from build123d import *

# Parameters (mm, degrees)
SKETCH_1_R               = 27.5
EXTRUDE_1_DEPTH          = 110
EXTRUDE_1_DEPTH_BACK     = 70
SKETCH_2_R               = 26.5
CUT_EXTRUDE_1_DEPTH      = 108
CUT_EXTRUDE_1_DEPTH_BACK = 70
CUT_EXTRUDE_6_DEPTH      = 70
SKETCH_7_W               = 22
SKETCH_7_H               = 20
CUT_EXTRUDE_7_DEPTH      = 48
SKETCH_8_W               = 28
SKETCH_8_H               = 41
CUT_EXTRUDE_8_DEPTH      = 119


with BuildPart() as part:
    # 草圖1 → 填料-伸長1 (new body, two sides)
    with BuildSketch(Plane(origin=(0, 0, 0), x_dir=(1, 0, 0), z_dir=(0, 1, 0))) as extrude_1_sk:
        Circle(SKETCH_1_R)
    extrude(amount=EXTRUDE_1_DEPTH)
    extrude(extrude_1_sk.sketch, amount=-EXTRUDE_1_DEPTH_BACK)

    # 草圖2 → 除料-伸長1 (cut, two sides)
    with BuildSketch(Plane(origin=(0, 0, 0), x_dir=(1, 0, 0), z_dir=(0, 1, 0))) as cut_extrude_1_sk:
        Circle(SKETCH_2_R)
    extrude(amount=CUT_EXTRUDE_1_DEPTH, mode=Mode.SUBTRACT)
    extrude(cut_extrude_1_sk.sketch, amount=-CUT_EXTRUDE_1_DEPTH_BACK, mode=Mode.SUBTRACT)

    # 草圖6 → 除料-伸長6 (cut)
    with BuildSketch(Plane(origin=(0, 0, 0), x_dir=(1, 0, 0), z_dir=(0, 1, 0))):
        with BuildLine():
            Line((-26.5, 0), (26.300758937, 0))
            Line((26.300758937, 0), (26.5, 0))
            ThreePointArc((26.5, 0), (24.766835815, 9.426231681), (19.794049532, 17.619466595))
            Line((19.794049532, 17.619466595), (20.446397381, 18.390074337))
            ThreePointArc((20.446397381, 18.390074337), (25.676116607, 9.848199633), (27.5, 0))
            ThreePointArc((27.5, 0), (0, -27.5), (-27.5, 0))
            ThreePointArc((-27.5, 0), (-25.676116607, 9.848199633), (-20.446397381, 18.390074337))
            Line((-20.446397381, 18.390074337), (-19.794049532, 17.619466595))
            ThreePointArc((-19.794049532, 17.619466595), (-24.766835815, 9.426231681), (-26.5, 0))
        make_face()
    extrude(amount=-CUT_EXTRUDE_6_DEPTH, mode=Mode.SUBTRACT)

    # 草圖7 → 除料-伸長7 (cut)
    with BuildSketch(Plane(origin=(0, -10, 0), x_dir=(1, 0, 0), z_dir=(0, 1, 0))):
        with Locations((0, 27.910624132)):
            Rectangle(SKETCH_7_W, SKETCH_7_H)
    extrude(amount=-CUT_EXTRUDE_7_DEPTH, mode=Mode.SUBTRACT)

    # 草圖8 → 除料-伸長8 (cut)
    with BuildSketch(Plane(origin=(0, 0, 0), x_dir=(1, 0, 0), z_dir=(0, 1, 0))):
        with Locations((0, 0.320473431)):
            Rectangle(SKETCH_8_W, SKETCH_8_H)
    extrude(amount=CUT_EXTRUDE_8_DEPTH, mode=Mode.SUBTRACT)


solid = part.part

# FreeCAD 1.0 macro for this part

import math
import FreeCAD as App
import Part
import Sketcher


def add_polygon(sketch, points):
    """Adds a closed chain of lines whose ends are joined by coincident constraints."""
    first, n = sketch.GeometryCount, len(points)
    for a, b in zip(points, points[1:] + points[:1]):
        sketch.addGeometry(Part.LineSegment(App.Vector(*a, 0), App.Vector(*b, 0)), False)
    for i in range(n):
        sketch.addConstraint(Sketcher.Constraint("Coincident", first + i, 2, first + (i + 1) % n, 1))

doc = App.newDocument("Part")
body = doc.addObject("PartDesign::Body", "Body")

# Sketch on XZ plane
sketch1 = doc.addObject("Sketcher::SketchObject", "Sketch")
body.addObject(sketch1)
sketch1.AttachmentSupport = (doc.XZ_Plane, [""])
sketch1.MapMode = "FlatFace"
sketch1.addGeometry(Part.Circle(App.Vector(0, 0, 0), App.Vector(0, 0, 1), 28), False)
sketch1.addConstraint([
    Sketcher.Constraint("Coincident", 0, 3, -1, 1),
    Sketcher.Constraint("Diameter", 0, 55.0),
])
pad1 = doc.addObject("PartDesign::Pad", "Pad")
body.addObject(pad1)
pad1.Profile = sketch1
pad1.Type = "TwoLengths"
pad1.Length = 110
pad1.Length2 = 70
pad1.Reversed = True

# Sketch on XZ plane
sketch2 = doc.addObject("Sketcher::SketchObject", "Sketch001")
body.addObject(sketch2)
sketch2.AttachmentSupport = (doc.XZ_Plane, [""])
sketch2.MapMode = "FlatFace"
sketch2.addGeometry(Part.Circle(App.Vector(0, 0, 0), App.Vector(0, 0, 1), 26), False)
sketch2.addConstraint([
    Sketcher.Constraint("Coincident", 0, 3, -1, 1),
    Sketcher.Constraint("Diameter", 0, 53.0),
])
pocket1 = doc.addObject("PartDesign::Pocket", "Pocket")
body.addObject(pocket1)
pocket1.Profile = sketch2
pocket1.Type = "TwoLengths"
pocket1.Length = 108
pocket1.Length2 = 70

# Sketch on XZ plane
sketch3 = doc.addObject("Sketcher::SketchObject", "Sketch002")
body.addObject(sketch3)
sketch3.AttachmentSupport = (doc.XZ_Plane, [""])
sketch3.MapMode = "FlatFace"
sketch3.addGeometry([
    Part.LineSegment(App.Vector(26.5, 0, 0), App.Vector(-26.5, 0, 0)),  # 0
    Part.ArcOfCircle(Part.Circle(App.Vector(0, 0, 0), App.Vector(0, 0, 1), 26.5), math.radians(180), math.radians(222)),  # 1
    Part.LineSegment(App.Vector(-19.8, -17.6, 0), App.Vector(-20.4, -18.4, 0)),  # 2
    Part.ArcOfCircle(Part.Circle(App.Vector(0, 0, 0), App.Vector(0, 0, 1), 27.5), math.radians(180), math.radians(222)),  # 3
    Part.ArcOfCircle(Part.Circle(App.Vector(0, 0, 0), App.Vector(0, 0, 1), 27.5), math.radians(0), math.radians(180)),  # 4
    Part.ArcOfCircle(Part.Circle(App.Vector(0, 0, 0), App.Vector(0, 0, 1), 27.5), math.radians(-42), math.radians(0)),  # 5
    Part.LineSegment(App.Vector(20.4, -18.4, 0), App.Vector(19.8, -17.6, 0)),  # 6
    Part.ArcOfCircle(Part.Circle(App.Vector(0, 0, 0), App.Vector(0, 0, 1), 26.5), math.radians(-42), math.radians(0)),  # 7
], False)
sketch3.addConstraint([
    Sketcher.Constraint("Coincident", 0, 2, 1, 1),
    Sketcher.Constraint("Coincident", 1, 2, 2, 1),
    Sketcher.Constraint("Coincident", 2, 2, 3, 2),
    Sketcher.Constraint("Tangent", 3, 1, 4, 2),
    Sketcher.Constraint("Tangent", 4, 1, 5, 2),
    Sketcher.Constraint("Coincident", 5, 1, 6, 1),
    Sketcher.Constraint("Coincident", 6, 2, 7, 1),
    Sketcher.Constraint("Coincident", 7, 2, 0, 1),
    Sketcher.Constraint("Horizontal", 0),
    Sketcher.Constraint("Coincident", 1, 3, -1, 1),
    Sketcher.Constraint("Coincident", 3, 3, -1, 1),
    Sketcher.Constraint("Coincident", 7, 3, -1, 1),
    Sketcher.Constraint("Equal", 3, 4),
    Sketcher.Constraint("Equal", 4, 5),
    Sketcher.Constraint("Equal", 1, 7),
    Sketcher.Constraint("PointOnObject", 0, 2, -1),
    Sketcher.Constraint("PointOnObject", 3, 1, -1),
    Sketcher.Constraint("PointOnObject", 4, 1, -1),
    Sketcher.Constraint("Horizontal", 2, 2, 5, 1),
    Sketcher.Constraint("Horizontal", 1, 2, 6, 2),
    Sketcher.Constraint("Radius", 1, 26.5),
    Sketcher.Constraint("Radius", 3, 27.5),
    Sketcher.Constraint("Distance", 2, 1.00965),
    Sketcher.Constraint("DistanceX", 1, 2, -1, 1, 19.79405),
])
pocket2 = doc.addObject("PartDesign::Pocket", "Pocket001")
body.addObject(pocket2)
pocket2.Profile = sketch3
pocket2.Length = 70
pocket2.Reversed = True

# Sketch on XZ plane
sketch4 = doc.addObject("Sketcher::SketchObject", "Sketch003")
body.addObject(sketch4)
sketch4.AttachmentSupport = (doc.XZ_Plane, [""])
sketch4.MapMode = "FlatFace"
sketch4.AttachmentOffset = App.Placement(App.Vector(0, 0, 10), App.Rotation())
add_polygon(sketch4, [(-11, -38), (-11, -18), (11, -18), (11, -38)])  # lines 0-3
sketch4.addConstraint([
    Sketcher.Constraint("Vertical", 0),
    Sketcher.Constraint("Horizontal", 1),
    Sketcher.Constraint("Vertical", 2),
    Sketcher.Constraint("Horizontal", 3),
    Sketcher.Constraint("DistanceX", 1, 1, 1, 2, 22.0),
    Sketcher.Constraint("DistanceY", 0, 1, 0, 2, 20.0),
    Sketcher.Constraint("DistanceX", 0, 2, -1, 1, 11.0),
    Sketcher.Constraint("DistanceY", 0, 2, -1, 1, 17.910624),
])
pocket3 = doc.addObject("PartDesign::Pocket", "Pocket002")
body.addObject(pocket3)
pocket3.Profile = sketch4
pocket3.Length = 48
pocket3.Reversed = True

# Sketch on XZ plane
sketch5 = doc.addObject("Sketcher::SketchObject", "Sketch004")
body.addObject(sketch5)
sketch5.AttachmentSupport = (doc.XZ_Plane, [""])
sketch5.MapMode = "FlatFace"
add_polygon(sketch5, [(-14, -21), (-14, 20), (14, 20), (14, -21)])  # lines 0-3
sketch5.addConstraint([
    Sketcher.Constraint("Vertical", 0),
    Sketcher.Constraint("Horizontal", 1),
    Sketcher.Constraint("Vertical", 2),
    Sketcher.Constraint("Horizontal", 3),
    Sketcher.Constraint("DistanceX", 1, 1, 1, 2, 28.0),
    Sketcher.Constraint("DistanceY", 0, 1, 0, 2, 41.0),
    Sketcher.Constraint("DistanceX", 0, 2, -1, 1, 14.0),
    Sketcher.Constraint("DistanceY", -1, 1, 0, 2, 20.179527),
])
pocket4 = doc.addObject("PartDesign::Pocket", "Pocket003")
body.addObject(pocket4)
pocket4.Profile = sketch5
pocket4.Length = 119

doc.recompute()
